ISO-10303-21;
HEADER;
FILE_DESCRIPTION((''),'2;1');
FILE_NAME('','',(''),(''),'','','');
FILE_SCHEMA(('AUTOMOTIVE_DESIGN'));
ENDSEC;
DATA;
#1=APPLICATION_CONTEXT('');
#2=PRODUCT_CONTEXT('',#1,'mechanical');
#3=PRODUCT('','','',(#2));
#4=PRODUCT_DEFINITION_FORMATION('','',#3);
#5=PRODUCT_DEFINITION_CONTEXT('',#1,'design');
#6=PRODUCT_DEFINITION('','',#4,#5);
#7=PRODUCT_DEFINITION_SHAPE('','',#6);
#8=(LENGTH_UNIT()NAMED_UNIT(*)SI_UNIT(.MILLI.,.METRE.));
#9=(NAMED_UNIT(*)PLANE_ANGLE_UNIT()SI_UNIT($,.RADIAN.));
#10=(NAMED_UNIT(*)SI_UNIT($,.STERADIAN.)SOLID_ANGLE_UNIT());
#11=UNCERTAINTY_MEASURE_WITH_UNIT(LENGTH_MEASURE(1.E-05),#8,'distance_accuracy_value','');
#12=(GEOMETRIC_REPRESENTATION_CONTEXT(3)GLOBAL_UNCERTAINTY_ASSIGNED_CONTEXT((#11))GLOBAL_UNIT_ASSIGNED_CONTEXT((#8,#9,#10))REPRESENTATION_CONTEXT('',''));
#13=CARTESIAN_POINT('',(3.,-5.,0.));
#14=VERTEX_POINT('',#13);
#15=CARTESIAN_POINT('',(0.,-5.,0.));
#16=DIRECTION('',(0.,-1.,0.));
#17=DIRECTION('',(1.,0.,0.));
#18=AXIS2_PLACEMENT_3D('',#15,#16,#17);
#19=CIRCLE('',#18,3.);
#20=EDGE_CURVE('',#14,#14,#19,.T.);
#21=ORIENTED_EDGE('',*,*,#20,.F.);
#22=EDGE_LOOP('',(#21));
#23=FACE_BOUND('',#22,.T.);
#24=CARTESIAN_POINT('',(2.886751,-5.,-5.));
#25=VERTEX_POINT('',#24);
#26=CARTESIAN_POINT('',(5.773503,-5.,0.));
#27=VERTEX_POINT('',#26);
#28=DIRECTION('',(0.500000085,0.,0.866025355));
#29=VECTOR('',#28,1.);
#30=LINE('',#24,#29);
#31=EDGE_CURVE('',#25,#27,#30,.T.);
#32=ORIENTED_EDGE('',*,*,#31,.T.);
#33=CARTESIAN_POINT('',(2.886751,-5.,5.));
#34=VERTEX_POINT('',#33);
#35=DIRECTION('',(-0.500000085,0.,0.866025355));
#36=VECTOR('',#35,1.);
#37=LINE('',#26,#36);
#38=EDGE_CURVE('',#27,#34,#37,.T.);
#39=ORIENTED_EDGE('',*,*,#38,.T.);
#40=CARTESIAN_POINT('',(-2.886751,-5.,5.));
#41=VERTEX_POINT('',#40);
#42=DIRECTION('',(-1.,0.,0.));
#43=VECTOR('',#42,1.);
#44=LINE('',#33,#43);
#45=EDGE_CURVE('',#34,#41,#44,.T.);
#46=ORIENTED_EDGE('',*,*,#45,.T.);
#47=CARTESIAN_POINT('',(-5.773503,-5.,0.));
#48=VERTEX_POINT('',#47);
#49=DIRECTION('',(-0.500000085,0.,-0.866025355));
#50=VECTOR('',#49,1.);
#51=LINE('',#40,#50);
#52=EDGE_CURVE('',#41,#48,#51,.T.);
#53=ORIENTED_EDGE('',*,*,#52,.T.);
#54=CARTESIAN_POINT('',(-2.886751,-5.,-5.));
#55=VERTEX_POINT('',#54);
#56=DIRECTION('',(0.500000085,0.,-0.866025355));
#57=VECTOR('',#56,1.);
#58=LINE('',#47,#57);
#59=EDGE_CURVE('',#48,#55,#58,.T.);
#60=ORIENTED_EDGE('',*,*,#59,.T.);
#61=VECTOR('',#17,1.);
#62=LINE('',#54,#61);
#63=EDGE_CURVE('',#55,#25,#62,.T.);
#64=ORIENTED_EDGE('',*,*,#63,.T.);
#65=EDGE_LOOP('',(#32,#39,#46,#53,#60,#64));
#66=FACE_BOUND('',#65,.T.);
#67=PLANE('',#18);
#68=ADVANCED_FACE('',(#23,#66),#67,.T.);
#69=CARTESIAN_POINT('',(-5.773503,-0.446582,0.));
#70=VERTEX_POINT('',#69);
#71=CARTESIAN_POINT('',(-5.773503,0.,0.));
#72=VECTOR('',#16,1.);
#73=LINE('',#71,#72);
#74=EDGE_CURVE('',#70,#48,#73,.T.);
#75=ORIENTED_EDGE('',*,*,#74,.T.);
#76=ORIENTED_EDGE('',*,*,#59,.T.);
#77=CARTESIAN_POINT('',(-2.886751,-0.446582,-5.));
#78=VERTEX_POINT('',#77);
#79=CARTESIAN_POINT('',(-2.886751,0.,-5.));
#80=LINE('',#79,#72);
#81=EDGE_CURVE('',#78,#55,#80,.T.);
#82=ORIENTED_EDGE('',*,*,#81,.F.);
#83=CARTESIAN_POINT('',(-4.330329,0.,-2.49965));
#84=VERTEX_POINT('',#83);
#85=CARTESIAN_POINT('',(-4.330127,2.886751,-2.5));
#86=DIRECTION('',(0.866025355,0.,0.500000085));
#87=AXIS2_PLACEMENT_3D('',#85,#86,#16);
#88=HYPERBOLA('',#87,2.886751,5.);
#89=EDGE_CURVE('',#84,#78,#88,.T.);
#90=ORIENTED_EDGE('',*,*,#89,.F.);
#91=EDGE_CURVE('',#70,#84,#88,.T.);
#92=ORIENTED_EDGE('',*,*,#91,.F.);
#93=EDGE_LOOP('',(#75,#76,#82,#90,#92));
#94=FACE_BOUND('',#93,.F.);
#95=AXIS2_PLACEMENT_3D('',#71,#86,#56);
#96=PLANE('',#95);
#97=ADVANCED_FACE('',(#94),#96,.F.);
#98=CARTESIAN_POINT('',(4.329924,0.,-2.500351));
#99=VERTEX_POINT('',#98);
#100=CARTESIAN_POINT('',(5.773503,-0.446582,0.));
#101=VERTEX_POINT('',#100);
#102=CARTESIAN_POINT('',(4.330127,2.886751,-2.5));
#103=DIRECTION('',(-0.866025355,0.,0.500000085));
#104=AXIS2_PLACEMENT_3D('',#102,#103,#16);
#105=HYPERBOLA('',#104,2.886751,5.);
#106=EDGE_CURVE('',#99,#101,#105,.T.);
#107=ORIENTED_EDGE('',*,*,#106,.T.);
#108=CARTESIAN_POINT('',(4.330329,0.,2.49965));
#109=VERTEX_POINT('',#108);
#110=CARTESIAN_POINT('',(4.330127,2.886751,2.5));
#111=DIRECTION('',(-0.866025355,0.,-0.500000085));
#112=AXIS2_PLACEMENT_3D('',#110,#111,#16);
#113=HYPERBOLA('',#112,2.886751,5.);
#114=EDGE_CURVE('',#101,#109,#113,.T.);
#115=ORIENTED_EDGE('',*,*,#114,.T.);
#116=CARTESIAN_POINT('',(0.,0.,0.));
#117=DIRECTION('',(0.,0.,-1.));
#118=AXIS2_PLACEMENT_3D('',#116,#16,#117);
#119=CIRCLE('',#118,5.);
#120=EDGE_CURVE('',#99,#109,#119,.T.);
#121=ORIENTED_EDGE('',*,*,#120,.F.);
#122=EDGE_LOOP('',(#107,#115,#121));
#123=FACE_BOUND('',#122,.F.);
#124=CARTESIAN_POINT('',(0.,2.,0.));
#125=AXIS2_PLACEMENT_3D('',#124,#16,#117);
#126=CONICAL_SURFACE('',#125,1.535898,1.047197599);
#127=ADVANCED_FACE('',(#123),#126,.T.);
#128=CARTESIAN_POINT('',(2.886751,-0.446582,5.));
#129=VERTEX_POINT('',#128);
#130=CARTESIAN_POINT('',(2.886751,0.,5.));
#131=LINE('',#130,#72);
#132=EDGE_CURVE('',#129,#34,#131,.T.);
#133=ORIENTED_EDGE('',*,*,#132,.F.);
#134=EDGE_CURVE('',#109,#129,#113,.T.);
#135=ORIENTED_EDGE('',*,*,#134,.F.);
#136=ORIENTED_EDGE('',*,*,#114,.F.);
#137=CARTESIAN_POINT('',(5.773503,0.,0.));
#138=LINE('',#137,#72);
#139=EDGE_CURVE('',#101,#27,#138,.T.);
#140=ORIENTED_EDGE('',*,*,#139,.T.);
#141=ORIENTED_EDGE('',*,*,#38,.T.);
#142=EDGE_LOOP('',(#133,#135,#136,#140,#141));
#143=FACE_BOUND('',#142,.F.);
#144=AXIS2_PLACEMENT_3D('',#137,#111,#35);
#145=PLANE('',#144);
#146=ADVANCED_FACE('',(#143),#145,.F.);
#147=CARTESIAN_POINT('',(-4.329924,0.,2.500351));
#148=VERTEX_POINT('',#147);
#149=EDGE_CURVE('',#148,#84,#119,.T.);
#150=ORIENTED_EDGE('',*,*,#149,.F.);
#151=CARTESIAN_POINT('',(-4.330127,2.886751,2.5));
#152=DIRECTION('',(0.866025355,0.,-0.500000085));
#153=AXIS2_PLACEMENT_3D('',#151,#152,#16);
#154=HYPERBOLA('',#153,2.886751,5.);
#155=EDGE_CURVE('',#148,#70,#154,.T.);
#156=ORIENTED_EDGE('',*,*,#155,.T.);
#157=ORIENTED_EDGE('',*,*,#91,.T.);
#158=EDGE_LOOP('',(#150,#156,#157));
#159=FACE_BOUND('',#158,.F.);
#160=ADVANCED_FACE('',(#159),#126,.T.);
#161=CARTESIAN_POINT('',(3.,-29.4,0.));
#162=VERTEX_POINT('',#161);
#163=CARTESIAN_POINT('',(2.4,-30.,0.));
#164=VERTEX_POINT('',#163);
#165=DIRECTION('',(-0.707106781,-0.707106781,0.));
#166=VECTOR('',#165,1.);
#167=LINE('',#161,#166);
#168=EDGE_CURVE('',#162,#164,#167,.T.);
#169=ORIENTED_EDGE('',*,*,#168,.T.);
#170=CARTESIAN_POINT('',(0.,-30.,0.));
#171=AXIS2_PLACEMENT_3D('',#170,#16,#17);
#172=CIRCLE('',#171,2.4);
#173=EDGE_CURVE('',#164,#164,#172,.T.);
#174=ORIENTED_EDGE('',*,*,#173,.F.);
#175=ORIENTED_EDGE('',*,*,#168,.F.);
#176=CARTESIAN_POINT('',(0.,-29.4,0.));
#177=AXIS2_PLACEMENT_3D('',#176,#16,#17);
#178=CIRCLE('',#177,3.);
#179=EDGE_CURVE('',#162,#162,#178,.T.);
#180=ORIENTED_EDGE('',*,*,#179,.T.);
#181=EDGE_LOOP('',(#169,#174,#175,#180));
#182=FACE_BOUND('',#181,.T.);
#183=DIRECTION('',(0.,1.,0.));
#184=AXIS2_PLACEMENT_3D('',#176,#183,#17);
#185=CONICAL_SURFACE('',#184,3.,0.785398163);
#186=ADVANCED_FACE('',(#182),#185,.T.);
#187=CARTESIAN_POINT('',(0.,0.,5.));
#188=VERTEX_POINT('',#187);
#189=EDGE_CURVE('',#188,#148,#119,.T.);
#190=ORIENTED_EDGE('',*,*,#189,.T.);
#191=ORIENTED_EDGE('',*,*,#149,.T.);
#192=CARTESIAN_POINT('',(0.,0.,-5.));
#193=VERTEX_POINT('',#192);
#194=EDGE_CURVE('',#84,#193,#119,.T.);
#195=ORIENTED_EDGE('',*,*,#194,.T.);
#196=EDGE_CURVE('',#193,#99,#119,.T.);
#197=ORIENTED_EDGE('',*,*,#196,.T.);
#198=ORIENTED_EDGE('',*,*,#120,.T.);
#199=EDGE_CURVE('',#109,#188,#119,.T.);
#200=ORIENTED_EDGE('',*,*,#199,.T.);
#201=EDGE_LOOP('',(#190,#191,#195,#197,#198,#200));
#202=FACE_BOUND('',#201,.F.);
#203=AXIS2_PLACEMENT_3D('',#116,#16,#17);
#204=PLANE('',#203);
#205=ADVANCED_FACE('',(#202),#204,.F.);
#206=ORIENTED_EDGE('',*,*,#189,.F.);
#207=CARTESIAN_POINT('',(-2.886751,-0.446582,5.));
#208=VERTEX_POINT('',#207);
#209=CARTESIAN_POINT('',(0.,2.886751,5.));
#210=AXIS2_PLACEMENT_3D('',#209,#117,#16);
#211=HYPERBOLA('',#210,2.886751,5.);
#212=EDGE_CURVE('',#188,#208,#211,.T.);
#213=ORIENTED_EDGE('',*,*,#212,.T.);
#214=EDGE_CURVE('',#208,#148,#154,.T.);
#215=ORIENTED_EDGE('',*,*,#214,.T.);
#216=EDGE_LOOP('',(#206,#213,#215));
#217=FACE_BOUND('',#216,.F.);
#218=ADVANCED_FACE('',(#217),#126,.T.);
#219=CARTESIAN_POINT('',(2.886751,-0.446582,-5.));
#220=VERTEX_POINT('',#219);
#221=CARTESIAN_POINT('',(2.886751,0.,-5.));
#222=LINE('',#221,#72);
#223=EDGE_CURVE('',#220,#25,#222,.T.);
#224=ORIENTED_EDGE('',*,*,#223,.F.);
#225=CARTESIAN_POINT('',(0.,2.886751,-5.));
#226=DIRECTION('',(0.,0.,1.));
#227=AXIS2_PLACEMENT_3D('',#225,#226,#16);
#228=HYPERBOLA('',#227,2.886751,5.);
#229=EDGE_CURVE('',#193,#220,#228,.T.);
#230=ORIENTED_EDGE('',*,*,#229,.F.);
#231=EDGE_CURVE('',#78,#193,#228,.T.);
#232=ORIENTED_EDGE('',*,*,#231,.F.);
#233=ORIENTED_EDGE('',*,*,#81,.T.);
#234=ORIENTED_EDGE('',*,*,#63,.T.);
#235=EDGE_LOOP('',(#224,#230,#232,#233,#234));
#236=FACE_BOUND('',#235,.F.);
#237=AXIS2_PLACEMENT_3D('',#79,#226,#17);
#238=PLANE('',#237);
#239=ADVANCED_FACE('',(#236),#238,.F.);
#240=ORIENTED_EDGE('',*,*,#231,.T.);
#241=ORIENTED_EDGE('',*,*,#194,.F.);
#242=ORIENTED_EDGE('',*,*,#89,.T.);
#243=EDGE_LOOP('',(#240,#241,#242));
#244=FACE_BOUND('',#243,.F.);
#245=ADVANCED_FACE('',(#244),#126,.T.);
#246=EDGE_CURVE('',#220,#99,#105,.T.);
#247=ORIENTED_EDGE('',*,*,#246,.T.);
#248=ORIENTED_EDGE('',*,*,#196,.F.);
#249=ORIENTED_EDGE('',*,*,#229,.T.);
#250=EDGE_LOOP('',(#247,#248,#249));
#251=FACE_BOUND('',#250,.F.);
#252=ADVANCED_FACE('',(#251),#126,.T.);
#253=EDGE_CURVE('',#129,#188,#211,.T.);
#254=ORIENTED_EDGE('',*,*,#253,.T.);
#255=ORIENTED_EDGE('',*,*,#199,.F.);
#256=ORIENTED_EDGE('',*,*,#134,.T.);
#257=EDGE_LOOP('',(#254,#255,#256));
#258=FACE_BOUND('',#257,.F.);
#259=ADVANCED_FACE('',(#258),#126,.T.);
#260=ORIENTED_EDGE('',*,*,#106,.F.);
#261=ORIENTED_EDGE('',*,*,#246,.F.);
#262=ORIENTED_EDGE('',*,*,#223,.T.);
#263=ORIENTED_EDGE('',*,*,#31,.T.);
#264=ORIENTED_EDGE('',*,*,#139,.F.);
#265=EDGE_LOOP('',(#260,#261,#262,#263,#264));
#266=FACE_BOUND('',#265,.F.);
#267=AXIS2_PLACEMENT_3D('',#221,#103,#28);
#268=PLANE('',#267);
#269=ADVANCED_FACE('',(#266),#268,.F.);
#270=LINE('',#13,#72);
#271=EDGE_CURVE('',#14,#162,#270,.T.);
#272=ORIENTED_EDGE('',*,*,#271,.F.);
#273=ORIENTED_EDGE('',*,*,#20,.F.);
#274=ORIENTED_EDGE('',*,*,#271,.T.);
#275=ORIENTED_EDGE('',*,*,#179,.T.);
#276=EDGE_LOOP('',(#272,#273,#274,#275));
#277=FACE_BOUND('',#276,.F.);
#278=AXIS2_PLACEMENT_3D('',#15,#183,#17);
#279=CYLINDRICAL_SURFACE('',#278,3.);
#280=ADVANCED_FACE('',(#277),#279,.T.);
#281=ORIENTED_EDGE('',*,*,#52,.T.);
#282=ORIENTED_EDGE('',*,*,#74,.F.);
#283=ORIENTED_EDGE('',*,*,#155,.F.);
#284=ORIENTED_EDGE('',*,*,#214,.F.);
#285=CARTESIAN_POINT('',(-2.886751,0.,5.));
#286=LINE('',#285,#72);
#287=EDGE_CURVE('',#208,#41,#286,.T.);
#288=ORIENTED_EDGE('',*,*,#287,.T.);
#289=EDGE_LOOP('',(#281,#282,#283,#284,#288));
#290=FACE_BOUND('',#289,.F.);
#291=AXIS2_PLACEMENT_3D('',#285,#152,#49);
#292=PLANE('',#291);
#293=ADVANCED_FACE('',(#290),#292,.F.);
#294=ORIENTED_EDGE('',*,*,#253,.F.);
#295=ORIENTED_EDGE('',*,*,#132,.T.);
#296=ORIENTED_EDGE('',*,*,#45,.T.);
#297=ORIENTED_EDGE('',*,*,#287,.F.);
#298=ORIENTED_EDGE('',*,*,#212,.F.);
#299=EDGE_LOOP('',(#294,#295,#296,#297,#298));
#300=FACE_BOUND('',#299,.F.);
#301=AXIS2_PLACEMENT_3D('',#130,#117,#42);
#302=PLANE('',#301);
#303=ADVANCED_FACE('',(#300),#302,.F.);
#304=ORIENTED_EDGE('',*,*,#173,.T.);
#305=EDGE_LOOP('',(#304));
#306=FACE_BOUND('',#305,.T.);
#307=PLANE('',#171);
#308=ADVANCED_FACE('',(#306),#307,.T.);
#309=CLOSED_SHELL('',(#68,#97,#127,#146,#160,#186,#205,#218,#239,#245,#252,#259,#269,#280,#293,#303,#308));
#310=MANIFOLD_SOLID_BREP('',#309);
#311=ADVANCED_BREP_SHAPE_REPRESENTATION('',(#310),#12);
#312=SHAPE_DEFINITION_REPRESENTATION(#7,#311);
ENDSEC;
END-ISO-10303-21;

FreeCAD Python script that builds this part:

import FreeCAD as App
import Part
import Sketcher
from FreeCAD import Vector
Q = App.Units.Quantity


def edges_at(feature, points):
    """Names of the edges that pass closest to the given points."""
    edges = feature.Shape.Edges
    near = lambda p: min(range(len(edges)), key=lambda i: edges[i].distToShape(Part.Vertex(*p))[0])
    return sorted({f"Edge{near(p) + 1}" for p in points})


def add_polygon(sketch, points):
    """Adds a closed chain of lines whose ends are joined by coincident constraints."""
    first, n = sketch.GeometryCount, len(points)
    for a, b in zip(points, points[1:] + points[:1]):
        sketch.addGeometry(Part.LineSegment(App.Vector(*a, 0), App.Vector(*b, 0)), False)
    for i in range(n):
        sketch.addConstraint(Sketcher.Constraint("Coincident", first + i, 2, first + (i + 1) % n, 1))

doc = App.newDocument("Part")
body = doc.addObject("PartDesign::Body", "Body")

sketch1 = body.newObject("Sketcher::SketchObject", "Sketch")
sketch1.AttachmentSupport = (doc.getObject("XZ_Plane"), [""])
sketch1.MapMode = "FlatFace"
add_polygon(sketch1, [(2.886751, -5), (5.773503, 0), (2.886751, 5), (-2.886751, 5), (-5.773503, 0), (-2.886751, -5)])
sketch1.addConstraint(Sketcher.Constraint("Horizontal", 2))
sketch1.addConstraint(Sketcher.Constraint("Horizontal", 5))
sketch1.addConstraint(Sketcher.Constraint("Symmetric", 0, 2, 3, 2, -1, 1))
sketch1.addConstraint(Sketcher.Constraint("Symmetric", 1, 2, 4, 2, -1, 1))
sketch1.addConstraint(Sketcher.Constraint("PointOnObject", 0, 2, -1))
sketch1.addConstraint(Sketcher.Constraint("Parallel", 0, 3))
sketch1.addConstraint(Sketcher.Constraint("Vertical", 2, 2, 4, 2))
sketch1.addConstraint(Sketcher.Constraint("Angle", 0, Q("59.999994 deg")))
sketch1.addConstraint(Sketcher.Constraint("DistanceY", -1, 1, 1, 2, 5.0))
sketch1.addConstraint(Sketcher.Constraint("DistanceX", 2, 2, 2, 1, 5.773502))
pad1 = body.newObject("PartDesign::Pad", "Pad")
pad1.Profile = sketch1
pad1.Length = 5

sketch2 = body.newObject("Sketcher::SketchObject", "Sketch001")
sketch2.AttachmentSupport = (doc.getObject("XZ_Plane"), [""])
sketch2.MapMode = "FlatFace"
sketch2.AttachmentOffset = App.Placement(Vector(0, 0, 5), App.Rotation())
sketch2.addGeometry(Part.Circle(Vector(0, 0, 0), Vector(0, 0, 1), 3), False)
sketch2.addConstraint(Sketcher.Constraint("Coincident", 0, 3, -1, 1))
sketch2.addConstraint(Sketcher.Constraint("Diameter", 0, 6.0))
pad2 = body.newObject("PartDesign::Pad", "Pad001")
pad2.Profile = sketch2
pad2.Length = 25
doc.recompute()

chamfer = body.newObject("PartDesign::Chamfer", "Chamfer")
chamfer.Base = (pad2, edges_at(pad2, [(-3, -30, 0)]))
chamfer.Size = 0.6

sketch3 = body.newObject("Sketcher::SketchObject", "Sketch002")
sketch3.AttachmentSupport = (doc.getObject("YZ_Plane"), [""])
sketch3.MapMode = "FlatFace"
add_polygon(sketch3, [(2, -1.535898), (-2, -8.464102), (2, -8.464102)])
sketch3.addConstraint(Sketcher.Constraint("Horizontal", 1))
sketch3.addConstraint(Sketcher.Constraint("Vertical", 2))
sketch3.addConstraint(Sketcher.Constraint("DistanceX", 1, 1, 1, 2, 4.0))
sketch3.addConstraint(Sketcher.Constraint("Angle", 0, Q("-119.999997 deg")))
sketch3.addConstraint(Sketcher.Constraint("DistanceX", 0, 2, -1, 1, 2.0))
sketch3.addConstraint(Sketcher.Constraint("DistanceY", 0, 2, -1, 1, 8.464102))
groove = body.newObject("PartDesign::Groove", "Groove")
groove.Profile = sketch3
groove.ReferenceAxis = (sketch3, ["H_Axis"])
groove.Angle = 360

doc.recompute()
